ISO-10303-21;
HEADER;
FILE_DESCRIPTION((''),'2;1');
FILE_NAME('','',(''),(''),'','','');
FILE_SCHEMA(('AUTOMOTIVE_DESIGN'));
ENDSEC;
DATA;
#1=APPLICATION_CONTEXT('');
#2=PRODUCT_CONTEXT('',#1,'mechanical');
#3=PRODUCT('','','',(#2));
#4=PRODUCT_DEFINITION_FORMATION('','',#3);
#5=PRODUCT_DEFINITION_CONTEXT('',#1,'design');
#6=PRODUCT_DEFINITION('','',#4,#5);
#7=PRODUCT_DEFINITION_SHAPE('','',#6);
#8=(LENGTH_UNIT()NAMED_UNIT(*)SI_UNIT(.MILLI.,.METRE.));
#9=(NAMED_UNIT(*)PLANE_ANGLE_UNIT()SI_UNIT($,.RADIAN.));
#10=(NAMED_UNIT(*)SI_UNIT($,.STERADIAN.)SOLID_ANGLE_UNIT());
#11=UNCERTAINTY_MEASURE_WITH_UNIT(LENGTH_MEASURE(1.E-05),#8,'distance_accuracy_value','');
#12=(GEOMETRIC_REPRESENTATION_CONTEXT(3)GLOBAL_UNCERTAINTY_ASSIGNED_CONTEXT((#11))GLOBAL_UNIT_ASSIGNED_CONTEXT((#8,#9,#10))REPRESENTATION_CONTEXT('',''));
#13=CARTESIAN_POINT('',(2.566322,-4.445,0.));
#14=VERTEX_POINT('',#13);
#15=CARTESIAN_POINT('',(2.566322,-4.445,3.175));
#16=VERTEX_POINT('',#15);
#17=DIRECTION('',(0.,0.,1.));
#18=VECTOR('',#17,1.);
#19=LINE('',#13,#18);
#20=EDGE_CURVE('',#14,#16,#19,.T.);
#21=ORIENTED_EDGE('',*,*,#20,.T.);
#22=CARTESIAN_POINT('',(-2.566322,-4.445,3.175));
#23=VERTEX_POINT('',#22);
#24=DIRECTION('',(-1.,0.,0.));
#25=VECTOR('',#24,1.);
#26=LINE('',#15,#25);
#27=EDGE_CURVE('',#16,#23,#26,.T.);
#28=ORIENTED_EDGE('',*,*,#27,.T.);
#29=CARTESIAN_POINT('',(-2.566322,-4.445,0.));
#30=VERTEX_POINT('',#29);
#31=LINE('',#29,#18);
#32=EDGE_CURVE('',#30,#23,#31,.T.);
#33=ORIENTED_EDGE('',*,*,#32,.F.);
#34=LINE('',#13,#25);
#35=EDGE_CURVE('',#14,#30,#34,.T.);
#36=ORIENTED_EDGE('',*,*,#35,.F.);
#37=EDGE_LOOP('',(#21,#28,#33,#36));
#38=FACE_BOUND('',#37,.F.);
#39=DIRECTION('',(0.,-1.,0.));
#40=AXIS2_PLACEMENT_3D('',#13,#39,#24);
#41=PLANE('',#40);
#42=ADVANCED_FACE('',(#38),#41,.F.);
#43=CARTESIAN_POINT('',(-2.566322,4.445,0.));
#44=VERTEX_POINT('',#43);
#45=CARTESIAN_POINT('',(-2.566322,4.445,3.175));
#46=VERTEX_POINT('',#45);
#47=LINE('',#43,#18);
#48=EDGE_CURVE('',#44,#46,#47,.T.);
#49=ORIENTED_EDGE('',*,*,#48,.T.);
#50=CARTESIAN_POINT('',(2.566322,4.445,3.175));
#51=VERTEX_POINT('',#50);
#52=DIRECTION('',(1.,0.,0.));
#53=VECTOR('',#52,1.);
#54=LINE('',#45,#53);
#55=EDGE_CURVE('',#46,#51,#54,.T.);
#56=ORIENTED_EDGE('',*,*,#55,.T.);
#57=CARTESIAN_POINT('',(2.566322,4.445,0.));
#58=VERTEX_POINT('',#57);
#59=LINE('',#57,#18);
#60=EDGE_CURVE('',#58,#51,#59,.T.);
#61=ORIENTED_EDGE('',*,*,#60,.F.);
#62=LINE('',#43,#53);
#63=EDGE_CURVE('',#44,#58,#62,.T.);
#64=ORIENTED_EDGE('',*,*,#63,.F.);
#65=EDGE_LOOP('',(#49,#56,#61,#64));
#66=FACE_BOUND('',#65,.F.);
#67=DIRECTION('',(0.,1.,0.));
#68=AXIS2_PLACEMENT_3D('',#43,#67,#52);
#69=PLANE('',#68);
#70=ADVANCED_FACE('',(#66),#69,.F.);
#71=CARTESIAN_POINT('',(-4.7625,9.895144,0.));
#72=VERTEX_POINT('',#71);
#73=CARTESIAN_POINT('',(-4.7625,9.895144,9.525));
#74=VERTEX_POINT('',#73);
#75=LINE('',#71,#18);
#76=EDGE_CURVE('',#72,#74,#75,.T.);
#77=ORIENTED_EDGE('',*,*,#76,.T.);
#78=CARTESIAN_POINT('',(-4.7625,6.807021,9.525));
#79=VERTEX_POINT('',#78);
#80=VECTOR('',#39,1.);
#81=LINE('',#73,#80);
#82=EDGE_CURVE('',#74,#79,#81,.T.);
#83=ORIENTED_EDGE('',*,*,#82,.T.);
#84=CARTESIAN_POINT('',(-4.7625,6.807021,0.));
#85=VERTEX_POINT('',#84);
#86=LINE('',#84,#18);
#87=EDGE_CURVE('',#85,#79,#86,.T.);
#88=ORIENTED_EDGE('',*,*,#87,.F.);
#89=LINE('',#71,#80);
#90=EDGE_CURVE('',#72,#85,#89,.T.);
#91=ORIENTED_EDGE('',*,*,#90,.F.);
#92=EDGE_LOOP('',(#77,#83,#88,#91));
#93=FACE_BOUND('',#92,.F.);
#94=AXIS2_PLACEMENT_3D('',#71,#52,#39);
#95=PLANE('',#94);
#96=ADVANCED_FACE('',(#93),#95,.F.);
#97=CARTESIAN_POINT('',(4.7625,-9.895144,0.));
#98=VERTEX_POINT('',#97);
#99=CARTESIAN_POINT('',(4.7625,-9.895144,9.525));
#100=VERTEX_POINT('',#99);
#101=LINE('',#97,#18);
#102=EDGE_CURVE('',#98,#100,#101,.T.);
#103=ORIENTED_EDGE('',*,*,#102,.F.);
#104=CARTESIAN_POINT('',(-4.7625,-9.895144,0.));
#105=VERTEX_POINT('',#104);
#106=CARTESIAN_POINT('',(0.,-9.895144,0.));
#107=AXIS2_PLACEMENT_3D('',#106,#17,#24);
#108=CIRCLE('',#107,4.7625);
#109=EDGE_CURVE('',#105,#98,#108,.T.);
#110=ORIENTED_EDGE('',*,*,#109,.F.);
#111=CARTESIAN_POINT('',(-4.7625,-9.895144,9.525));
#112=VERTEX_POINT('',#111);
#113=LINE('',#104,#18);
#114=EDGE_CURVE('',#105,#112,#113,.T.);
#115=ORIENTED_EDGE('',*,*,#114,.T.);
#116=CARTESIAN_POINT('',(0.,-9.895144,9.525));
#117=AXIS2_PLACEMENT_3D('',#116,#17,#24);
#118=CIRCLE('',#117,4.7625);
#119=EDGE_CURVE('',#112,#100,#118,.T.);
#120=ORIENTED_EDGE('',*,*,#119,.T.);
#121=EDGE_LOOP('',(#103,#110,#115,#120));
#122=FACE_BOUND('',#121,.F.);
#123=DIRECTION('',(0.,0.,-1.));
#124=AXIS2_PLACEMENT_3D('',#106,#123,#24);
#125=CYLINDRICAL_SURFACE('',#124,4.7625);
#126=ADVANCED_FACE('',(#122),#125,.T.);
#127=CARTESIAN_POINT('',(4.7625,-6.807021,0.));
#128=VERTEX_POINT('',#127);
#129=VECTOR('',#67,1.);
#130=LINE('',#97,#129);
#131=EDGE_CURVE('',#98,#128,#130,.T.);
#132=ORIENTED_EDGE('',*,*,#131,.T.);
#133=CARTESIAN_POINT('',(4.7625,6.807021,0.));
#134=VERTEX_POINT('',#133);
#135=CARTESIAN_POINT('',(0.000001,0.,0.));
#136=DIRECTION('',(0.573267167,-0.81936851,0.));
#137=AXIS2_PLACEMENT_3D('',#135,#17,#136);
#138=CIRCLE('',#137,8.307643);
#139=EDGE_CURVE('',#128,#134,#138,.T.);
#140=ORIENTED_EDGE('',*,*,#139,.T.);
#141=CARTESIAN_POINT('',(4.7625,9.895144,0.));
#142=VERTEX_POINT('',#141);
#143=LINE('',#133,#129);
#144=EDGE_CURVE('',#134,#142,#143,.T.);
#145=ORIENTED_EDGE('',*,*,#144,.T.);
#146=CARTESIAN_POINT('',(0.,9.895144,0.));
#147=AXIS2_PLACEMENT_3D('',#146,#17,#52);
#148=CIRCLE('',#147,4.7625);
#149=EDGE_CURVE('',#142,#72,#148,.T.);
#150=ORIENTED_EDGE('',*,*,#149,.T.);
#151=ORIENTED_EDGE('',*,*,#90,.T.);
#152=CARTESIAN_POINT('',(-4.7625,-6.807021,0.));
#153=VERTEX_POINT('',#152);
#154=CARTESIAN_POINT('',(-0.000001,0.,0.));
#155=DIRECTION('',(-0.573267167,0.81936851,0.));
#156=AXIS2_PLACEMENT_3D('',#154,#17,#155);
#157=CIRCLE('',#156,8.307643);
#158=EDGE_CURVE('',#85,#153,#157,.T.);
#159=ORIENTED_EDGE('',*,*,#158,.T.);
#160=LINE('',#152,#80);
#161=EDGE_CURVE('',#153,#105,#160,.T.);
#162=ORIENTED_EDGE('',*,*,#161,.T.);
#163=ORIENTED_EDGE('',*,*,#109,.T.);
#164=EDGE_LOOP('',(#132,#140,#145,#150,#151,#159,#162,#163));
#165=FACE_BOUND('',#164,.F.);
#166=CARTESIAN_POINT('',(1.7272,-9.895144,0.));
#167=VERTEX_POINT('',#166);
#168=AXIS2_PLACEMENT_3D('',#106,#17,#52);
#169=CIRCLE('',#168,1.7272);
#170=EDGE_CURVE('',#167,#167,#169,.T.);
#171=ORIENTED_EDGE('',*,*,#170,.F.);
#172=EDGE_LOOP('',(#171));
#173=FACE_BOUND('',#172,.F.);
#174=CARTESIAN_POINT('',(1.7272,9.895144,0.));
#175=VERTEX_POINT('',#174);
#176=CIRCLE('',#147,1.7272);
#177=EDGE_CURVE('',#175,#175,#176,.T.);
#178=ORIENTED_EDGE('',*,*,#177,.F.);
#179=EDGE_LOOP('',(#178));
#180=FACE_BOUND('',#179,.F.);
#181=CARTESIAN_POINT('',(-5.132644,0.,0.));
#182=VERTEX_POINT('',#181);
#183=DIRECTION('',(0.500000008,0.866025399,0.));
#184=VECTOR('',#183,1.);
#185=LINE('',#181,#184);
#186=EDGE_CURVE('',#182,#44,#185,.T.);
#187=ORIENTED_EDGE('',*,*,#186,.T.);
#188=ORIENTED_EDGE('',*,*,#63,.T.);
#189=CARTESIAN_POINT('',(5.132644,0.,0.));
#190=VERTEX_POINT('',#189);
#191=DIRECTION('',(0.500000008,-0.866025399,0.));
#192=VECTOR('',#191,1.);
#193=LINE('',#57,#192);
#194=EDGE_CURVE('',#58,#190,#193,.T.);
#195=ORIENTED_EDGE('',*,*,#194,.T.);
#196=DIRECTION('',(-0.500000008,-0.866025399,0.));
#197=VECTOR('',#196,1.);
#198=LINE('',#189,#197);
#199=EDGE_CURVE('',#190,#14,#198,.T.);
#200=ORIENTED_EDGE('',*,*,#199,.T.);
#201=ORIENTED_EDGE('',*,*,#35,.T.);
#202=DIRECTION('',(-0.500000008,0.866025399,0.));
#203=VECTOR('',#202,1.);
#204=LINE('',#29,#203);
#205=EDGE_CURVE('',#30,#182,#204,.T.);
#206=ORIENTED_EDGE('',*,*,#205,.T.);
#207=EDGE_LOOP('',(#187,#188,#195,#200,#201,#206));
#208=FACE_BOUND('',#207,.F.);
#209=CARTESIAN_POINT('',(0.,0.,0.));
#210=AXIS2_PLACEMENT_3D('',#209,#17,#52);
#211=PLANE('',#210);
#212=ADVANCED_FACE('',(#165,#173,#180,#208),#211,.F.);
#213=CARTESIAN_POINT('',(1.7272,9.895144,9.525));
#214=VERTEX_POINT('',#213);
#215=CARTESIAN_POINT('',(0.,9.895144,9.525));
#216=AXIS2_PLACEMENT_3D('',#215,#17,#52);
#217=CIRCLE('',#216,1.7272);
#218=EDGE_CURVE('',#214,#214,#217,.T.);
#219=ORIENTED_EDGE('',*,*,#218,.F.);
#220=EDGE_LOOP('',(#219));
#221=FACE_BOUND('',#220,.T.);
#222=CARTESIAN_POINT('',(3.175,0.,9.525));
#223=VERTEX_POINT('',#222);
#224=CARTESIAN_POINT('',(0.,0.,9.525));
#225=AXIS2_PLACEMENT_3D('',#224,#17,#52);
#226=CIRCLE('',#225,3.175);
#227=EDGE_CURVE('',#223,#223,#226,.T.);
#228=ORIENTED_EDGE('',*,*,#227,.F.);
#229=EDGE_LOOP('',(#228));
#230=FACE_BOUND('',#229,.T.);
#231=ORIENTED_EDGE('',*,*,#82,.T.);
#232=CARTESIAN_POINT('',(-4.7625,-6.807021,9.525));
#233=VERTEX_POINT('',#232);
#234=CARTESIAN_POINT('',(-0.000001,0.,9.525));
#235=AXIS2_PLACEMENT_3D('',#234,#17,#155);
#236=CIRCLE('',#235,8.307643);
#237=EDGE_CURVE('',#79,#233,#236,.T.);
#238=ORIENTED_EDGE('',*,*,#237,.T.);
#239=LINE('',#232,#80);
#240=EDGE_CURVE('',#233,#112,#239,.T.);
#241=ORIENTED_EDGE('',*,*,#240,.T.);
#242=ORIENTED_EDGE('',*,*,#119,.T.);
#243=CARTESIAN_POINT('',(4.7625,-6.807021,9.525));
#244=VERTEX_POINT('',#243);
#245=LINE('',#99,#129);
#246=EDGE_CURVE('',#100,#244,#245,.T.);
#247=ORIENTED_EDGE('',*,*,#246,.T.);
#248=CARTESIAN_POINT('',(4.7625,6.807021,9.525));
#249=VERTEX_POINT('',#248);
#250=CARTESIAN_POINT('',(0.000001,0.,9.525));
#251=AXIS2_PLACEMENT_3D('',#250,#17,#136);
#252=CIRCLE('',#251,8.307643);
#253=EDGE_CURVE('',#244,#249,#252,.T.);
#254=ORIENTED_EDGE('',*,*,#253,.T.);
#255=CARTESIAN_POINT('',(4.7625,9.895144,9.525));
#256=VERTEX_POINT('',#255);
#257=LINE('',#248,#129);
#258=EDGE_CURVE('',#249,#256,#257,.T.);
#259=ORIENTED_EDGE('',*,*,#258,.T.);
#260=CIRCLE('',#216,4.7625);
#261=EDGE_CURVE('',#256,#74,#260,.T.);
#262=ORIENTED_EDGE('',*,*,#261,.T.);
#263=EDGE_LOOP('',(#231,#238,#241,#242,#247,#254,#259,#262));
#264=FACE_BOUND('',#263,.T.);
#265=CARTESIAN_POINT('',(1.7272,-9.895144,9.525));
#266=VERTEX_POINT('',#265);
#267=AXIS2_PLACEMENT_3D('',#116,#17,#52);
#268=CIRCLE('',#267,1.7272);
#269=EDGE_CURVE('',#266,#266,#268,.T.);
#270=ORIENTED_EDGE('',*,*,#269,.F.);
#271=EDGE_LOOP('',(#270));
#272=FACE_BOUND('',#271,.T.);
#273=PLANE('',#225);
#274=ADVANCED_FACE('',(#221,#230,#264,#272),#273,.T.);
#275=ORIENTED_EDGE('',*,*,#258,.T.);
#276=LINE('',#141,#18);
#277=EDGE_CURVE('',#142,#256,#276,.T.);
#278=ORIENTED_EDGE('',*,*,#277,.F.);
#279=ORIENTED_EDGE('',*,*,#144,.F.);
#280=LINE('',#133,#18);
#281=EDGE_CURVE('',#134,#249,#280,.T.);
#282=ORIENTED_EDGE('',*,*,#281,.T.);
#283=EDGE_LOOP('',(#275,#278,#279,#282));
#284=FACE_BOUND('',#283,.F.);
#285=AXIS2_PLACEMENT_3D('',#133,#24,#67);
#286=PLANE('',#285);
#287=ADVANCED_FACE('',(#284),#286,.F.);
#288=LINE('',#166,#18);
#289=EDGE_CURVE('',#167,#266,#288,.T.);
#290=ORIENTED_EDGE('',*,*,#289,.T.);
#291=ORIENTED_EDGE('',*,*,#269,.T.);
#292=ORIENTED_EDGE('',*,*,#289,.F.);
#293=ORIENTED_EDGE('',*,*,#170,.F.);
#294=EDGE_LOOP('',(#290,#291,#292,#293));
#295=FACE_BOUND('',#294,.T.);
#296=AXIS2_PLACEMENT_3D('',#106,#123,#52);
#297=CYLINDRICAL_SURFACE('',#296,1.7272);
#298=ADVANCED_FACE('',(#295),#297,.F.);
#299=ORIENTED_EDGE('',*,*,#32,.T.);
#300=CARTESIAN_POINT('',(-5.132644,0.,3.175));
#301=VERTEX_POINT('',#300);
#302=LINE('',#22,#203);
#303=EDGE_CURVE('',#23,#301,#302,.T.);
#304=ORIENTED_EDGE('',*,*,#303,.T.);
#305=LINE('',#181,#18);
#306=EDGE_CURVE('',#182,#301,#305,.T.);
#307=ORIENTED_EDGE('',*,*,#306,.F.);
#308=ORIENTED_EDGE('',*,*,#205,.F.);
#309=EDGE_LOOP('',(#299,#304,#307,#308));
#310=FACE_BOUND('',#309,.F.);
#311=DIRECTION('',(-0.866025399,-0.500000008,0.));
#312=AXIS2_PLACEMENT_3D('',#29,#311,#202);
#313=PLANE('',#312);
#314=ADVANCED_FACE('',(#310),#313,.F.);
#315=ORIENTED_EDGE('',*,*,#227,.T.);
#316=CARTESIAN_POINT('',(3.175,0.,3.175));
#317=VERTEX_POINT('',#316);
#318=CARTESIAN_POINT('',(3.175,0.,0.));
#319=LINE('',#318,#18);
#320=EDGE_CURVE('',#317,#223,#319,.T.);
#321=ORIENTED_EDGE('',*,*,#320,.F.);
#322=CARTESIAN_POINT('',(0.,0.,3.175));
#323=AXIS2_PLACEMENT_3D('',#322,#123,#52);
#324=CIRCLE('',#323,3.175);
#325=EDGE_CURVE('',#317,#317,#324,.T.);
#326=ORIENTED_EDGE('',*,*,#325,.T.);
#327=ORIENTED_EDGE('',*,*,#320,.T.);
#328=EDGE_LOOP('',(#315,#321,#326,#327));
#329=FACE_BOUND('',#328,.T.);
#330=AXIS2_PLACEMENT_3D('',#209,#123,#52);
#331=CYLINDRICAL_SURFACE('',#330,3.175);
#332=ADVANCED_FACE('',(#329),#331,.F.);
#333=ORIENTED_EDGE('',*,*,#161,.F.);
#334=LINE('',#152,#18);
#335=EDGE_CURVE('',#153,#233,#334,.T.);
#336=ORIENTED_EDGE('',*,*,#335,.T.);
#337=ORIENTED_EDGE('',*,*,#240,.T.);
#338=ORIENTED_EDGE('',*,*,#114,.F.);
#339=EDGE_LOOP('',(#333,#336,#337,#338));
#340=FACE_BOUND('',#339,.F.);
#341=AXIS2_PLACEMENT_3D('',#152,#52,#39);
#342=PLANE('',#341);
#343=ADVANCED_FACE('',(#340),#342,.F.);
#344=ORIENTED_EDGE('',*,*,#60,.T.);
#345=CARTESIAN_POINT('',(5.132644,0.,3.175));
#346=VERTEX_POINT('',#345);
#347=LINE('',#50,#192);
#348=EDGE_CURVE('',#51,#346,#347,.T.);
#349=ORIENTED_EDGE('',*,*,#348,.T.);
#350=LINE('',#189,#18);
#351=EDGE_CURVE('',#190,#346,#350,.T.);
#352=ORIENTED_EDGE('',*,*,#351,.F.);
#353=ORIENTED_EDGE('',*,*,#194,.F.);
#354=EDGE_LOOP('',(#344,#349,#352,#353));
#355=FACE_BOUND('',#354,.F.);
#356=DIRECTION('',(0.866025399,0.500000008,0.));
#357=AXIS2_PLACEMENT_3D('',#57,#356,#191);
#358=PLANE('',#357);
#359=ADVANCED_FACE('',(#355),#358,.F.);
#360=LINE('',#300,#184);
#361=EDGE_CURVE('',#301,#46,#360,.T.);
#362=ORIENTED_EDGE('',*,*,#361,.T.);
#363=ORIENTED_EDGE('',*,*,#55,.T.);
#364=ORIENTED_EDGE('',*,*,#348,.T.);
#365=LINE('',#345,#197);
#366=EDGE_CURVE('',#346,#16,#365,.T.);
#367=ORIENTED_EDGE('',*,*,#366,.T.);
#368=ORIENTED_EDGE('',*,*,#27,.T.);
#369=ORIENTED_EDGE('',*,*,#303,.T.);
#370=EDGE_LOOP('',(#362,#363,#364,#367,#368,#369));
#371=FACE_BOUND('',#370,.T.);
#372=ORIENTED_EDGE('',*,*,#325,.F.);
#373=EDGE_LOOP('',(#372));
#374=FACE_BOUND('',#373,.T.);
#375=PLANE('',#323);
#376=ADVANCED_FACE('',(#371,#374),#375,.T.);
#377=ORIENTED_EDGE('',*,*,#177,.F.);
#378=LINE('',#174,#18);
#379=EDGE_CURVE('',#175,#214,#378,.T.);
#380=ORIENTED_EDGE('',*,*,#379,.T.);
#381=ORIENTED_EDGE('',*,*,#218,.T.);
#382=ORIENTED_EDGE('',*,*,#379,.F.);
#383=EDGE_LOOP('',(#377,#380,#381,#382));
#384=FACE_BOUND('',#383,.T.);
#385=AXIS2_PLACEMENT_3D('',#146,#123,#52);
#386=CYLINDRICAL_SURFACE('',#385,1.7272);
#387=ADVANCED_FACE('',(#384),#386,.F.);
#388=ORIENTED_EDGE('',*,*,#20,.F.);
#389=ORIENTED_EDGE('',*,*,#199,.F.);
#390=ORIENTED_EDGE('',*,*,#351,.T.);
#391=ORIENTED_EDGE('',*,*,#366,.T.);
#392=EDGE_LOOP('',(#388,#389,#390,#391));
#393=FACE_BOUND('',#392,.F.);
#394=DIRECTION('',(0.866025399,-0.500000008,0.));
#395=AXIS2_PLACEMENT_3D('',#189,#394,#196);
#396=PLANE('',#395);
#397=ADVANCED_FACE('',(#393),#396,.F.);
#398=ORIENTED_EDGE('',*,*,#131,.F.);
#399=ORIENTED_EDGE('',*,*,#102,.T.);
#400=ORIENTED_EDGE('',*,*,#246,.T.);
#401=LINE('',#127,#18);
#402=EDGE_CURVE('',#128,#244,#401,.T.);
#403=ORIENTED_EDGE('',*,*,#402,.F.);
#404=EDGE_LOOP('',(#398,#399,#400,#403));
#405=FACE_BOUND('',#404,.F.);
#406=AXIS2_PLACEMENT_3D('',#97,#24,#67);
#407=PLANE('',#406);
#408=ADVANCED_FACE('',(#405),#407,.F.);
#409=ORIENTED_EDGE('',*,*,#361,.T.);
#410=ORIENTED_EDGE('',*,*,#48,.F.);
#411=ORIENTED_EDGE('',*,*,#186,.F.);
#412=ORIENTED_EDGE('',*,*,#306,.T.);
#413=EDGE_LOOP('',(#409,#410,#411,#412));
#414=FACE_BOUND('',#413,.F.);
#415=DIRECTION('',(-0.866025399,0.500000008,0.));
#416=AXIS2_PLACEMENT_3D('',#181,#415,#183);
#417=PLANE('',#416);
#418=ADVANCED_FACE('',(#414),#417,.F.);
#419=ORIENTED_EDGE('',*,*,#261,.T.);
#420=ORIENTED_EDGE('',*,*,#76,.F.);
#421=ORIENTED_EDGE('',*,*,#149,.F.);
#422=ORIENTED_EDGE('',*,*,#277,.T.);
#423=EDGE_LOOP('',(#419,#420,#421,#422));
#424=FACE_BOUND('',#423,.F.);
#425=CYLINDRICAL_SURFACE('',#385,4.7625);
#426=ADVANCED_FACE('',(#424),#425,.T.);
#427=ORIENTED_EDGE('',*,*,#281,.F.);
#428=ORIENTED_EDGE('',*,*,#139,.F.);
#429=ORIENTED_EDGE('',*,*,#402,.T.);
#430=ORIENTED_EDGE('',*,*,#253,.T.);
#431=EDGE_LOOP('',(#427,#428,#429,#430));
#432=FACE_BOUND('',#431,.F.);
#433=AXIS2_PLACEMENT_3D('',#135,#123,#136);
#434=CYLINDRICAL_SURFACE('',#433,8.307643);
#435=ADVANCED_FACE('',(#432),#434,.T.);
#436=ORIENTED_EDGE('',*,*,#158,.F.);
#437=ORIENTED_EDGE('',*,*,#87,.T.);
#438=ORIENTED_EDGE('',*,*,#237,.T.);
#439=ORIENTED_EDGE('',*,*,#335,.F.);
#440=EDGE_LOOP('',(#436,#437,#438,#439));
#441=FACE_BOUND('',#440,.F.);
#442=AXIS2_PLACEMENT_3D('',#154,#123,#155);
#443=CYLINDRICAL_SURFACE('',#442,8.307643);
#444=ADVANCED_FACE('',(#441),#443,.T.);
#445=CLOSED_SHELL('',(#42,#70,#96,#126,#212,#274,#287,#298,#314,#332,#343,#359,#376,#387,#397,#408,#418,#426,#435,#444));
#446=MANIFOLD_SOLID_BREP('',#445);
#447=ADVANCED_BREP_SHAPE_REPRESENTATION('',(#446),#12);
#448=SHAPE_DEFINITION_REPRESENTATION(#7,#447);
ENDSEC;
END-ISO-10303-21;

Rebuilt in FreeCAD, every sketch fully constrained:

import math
import FreeCAD as App
import Part
import Sketcher

V = App.Vector
Q = App.Units.Quantity


def add_polygon(sketch, points):
    """Adds a closed chain of lines whose ends are joined by coincident constraints."""
    first, n = sketch.GeometryCount, len(points)
    for a, b in zip(points, points[1:] + points[:1]):
        sketch.addGeometry(Part.LineSegment(App.Vector(*a, 0), App.Vector(*b, 0)), False)
    for i in range(n):
        sketch.addConstraint(Sketcher.Constraint("Coincident", first + i, 2, first + (i + 1) % n, 1))

doc = App.newDocument("Part")
params = doc.addObject("Spreadsheet::Sheet", "Params")
for row, (alias, value) in enumerate([
    ("sketch1_diameter", "0.25 in"),
    ("sketch1_diameter2", "0.136 in"),
    ("sketch1_radius", "0.1875 in"),
    ("pad1_length", "0.375 in"),
    ("pocket1_length", "0.125 in"),
], start=1):
    params.set(f"A{row}", alias)
    params.set(f"B{row}", "=" + value)
    params.setAlias(f"B{row}", alias)

body = doc.addObject("PartDesign::Body", "Body")

sketch1 = body.newObject("Sketcher::SketchObject", "Sketch")
sketch1.AttachmentSupport = (doc.getObject("XY_Plane"), [""])
sketch1.MapMode = "FlatFace"
sketch1.addGeometry([
    Part.LineSegment(V(-4.8, 9.9, 0), V(-4.8, 6.8, 0)),
    Part.ArcOfCircle(Part.Circle(V(0, 0, 0), V(0, 0, 1), 8.3), math.radians(125), math.radians(235)),
    Part.LineSegment(V(-4.8, -6.8, 0), V(-4.8, -9.9, 0)),
    Part.ArcOfCircle(Part.Circle(V(0, -9.9, 0), V(0, 0, 1), 4.8), math.radians(180), math.radians(360)),
    Part.LineSegment(V(4.8, -9.9, 0), V(4.8, -6.8, 0)),
    Part.ArcOfCircle(Part.Circle(V(0, 0, 0), V(0, 0, 1), 8.3), math.radians(-55), math.radians(55)),
    Part.LineSegment(V(4.8, 6.8, 0), V(4.8, 9.9, 0)),
    Part.ArcOfCircle(Part.Circle(V(0, 9.9, 0), V(0, 0, 1), 4.8), math.radians(0), math.radians(180)),
    Part.Circle(V(0, -9.9, 0), V(0, 0, 1), 1.7),
    Part.Circle(V(0, 0, 0), V(0, 0, 1), 3.2),
    Part.Circle(V(0, 9.9, 0), V(0, 0, 1), 1.7),
], False)
sketch1.addConstraint([
    Sketcher.Constraint("Coincident", 0, 2, 1, 1),
    Sketcher.Constraint("Coincident", 1, 2, 2, 1),
    Sketcher.Constraint("Tangent", 2, 2, 3, 1),
    Sketcher.Constraint("Tangent", 3, 2, 4, 1),
    Sketcher.Constraint("Coincident", 4, 2, 5, 1),
    Sketcher.Constraint("Coincident", 5, 2, 6, 1),
    Sketcher.Constraint("Tangent", 6, 2, 7, 1),
    Sketcher.Constraint("Tangent", 7, 2, 0, 1),
    Sketcher.Constraint("Vertical", 0),
    Sketcher.Constraint("Vertical", 2),
    Sketcher.Constraint("Vertical", 4),
    Sketcher.Constraint("Vertical", 6),
    Sketcher.Constraint("Coincident", 1, 3, -1, 1),
    Sketcher.Constraint("Coincident", 5, 3, -1, 1),
    Sketcher.Constraint("Coincident", 9, 3, -1, 1),
    Sketcher.Constraint("Coincident", 8, 3, 3, 3),
    Sketcher.Constraint("Coincident", 10, 3, 7, 3),
    Sketcher.Constraint("Equal", 1, 5),
    Sketcher.Constraint("Equal", 3, 7),
    Sketcher.Constraint("Equal", 8, 10),
    Sketcher.Constraint("Symmetric", 3, 3, 7, 3, -1, 1),
    Sketcher.Constraint("PointOnObject", 3, 3, -2),
    Sketcher.Constraint("Diameter", 9, Q("0.25 in")),
    Sketcher.Constraint("Diameter", 8, Q("0.136 in")),
    Sketcher.Constraint("Radius", 3, Q("0.1875 in")),
    Sketcher.Constraint("Radius", 1, 8.307643),
    Sketcher.Constraint("DistanceY", 0, 2, 0, 1, 3.088123),
])
sketch1.setExpression("Constraints[22]", "Params.sketch1_diameter")
sketch1.setExpression("Constraints[23]", "Params.sketch1_diameter2")
sketch1.setExpression("Constraints[24]", "Params.sketch1_radius")
pad1 = body.newObject("PartDesign::Pad", "Pad")
pad1.Profile = sketch1
pad1.setExpression("Length", "Params.pad1_length")

sketch2 = body.newObject("Sketcher::SketchObject", "Sketch001")
sketch2.AttachmentSupport = (doc.getObject("XY_Plane"), [""])
sketch2.MapMode = "FlatFace"
add_polygon(sketch2, [(-3, -4), (-5, 0), (-3, 4), (3, 4), (5, 0), (3, -4)])
sketch2.addConstraint([
    Sketcher.Constraint("Horizontal", 2),
    Sketcher.Constraint("Horizontal", 5),
    Sketcher.Constraint("Symmetric", 0, 2, 3, 2, -1, 1),
    Sketcher.Constraint("Symmetric", 1, 2, 4, 2, -1, 1),
    Sketcher.Constraint("PointOnObject", 0, 2, -1),
    Sketcher.Constraint("Parallel", 0, 3),
    Sketcher.Constraint("Vertical", 2, 2, 4, 2),
    Sketcher.Constraint("Angle", 0, Q("120.000001 deg")),
    Sketcher.Constraint("DistanceY", 4, 2, 2, 2, Q("0.35 in")),
    Sketcher.Constraint("DistanceX", 2, 1, 2, 2, 5.132644),
])
pocket1 = body.newObject("PartDesign::Pocket", "Pocket")
pocket1.Profile = sketch2
pocket1.setExpression("Length", "Params.pocket1_length")
pocket1.Reversed = True

doc.recompute()
